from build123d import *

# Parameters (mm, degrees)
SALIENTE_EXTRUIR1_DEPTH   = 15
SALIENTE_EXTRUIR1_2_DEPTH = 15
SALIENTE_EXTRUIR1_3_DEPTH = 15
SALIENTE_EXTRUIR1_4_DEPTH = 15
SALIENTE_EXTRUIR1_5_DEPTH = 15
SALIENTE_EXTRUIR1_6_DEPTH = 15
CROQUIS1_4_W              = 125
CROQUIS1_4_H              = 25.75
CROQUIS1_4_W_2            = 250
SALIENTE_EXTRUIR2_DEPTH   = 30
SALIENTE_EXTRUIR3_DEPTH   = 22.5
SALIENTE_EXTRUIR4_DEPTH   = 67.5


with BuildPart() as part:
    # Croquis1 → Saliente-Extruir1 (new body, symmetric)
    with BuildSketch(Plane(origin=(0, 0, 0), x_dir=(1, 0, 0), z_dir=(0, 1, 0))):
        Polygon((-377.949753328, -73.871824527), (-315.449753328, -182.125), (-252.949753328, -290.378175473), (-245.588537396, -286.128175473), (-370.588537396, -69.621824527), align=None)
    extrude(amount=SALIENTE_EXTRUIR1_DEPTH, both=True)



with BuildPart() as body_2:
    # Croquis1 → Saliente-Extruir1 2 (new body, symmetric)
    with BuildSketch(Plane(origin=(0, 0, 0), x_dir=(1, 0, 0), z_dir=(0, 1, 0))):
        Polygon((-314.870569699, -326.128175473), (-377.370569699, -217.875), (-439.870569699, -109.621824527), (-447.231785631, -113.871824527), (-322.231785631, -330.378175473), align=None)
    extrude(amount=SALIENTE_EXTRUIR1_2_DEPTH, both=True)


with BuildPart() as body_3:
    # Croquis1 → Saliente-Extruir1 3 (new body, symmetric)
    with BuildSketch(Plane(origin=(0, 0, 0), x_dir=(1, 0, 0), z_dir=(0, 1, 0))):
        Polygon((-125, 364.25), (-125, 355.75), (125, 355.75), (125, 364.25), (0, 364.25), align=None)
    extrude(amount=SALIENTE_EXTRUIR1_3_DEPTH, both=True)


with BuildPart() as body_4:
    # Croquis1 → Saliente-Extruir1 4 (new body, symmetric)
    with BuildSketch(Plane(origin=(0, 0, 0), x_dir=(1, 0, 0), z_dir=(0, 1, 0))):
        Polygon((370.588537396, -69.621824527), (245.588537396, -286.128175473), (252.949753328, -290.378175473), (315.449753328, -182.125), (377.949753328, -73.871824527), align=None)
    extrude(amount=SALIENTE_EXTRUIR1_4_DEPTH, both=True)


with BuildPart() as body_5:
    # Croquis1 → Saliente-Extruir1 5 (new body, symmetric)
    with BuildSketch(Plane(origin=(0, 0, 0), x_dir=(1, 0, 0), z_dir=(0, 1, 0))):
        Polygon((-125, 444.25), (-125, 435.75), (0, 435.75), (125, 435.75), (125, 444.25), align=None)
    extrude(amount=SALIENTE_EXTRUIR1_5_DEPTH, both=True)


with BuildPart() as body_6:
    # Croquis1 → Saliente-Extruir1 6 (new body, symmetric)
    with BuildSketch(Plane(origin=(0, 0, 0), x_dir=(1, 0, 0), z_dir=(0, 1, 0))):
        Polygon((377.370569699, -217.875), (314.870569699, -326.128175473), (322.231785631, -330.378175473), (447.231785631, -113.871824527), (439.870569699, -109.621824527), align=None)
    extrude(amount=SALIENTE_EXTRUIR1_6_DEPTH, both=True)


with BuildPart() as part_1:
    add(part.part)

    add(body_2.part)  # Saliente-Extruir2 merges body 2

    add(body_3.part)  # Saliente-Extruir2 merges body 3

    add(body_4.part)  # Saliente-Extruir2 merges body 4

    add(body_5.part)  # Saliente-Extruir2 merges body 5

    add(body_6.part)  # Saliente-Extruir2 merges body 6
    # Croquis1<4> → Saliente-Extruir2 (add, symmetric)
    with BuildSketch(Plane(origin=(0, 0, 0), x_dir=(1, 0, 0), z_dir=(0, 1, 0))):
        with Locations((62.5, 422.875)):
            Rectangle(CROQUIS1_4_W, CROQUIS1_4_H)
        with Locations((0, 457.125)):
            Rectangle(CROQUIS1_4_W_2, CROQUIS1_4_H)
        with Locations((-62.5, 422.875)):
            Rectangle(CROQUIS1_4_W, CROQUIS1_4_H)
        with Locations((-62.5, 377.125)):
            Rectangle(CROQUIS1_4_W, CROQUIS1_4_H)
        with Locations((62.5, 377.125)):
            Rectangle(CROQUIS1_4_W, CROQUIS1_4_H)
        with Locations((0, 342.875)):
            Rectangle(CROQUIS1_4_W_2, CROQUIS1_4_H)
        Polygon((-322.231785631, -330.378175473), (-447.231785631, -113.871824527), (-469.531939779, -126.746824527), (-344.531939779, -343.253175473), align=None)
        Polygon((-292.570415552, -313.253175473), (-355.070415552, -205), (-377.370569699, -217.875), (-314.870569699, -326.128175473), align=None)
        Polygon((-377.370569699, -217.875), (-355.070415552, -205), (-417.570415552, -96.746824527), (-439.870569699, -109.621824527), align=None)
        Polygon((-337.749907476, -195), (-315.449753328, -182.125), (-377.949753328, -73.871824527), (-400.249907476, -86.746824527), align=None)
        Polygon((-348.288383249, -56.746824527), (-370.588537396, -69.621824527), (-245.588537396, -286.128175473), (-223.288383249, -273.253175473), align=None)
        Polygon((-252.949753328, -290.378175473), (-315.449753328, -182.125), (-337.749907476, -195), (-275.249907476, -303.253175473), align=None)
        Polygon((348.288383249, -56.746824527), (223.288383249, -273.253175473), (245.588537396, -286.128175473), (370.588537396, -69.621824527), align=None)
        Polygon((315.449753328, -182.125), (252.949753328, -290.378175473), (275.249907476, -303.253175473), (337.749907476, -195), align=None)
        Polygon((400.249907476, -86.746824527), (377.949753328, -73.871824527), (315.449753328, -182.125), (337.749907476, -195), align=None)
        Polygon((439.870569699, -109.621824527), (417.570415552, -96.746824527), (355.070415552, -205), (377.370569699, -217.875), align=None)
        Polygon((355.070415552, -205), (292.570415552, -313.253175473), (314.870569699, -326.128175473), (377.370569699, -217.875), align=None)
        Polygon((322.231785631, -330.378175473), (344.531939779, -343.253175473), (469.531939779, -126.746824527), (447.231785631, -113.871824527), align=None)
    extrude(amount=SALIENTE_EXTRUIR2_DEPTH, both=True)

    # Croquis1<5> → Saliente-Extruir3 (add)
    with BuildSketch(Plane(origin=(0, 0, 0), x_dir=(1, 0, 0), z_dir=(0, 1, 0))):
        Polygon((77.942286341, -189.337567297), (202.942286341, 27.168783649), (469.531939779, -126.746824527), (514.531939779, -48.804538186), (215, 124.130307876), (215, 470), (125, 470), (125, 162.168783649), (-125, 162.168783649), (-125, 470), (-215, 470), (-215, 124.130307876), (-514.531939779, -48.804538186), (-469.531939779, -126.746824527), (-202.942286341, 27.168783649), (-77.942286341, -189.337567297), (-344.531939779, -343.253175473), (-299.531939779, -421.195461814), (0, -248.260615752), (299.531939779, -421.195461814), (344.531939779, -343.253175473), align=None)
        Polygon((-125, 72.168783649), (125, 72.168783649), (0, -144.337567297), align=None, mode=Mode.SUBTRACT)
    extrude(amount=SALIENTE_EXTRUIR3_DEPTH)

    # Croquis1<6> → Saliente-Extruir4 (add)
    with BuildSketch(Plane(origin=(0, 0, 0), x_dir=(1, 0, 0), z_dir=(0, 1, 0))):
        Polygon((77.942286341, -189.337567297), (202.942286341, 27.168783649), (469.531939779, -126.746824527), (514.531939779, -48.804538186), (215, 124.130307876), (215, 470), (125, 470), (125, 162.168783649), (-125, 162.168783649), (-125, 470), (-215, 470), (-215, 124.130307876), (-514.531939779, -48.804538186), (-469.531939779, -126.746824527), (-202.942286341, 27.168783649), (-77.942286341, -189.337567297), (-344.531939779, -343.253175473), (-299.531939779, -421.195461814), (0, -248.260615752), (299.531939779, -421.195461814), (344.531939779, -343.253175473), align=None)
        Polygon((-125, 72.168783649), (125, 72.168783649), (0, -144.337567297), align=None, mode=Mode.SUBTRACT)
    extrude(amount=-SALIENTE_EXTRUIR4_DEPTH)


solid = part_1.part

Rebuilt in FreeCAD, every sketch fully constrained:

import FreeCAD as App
import Part
import Sketcher
from FreeCAD import Vector
Q = App.Units.Quantity

doc = App.newDocument("Part")
body = doc.addObject("PartDesign::Body", "Body")

sketch1 = doc.addObject("Sketcher::SketchObject", "Sketch")
body.addObject(sketch1)
sketch1.AttachmentSupport = (doc.XZ_Plane, [""])
sketch1.MapMode = "FlatFace"
sketch1.addGeometry([
    Part.LineSegment(Vector(-378, 74, 0), Vector(-253, 290, 0)),
    Part.LineSegment(Vector(-253, 290, 0), Vector(-246, 286, 0)),
    Part.LineSegment(Vector(-246, 286, 0), Vector(-371, 70, 0)),
    Part.LineSegment(Vector(-371, 70, 0), Vector(-378, 74, 0)),
], False)
sketch1.addConstraint([
    Sketcher.Constraint("Coincident", 0, 2, 1, 1),
    Sketcher.Constraint("Coincident", 1, 2, 2, 1),
    Sketcher.Constraint("Coincident", 2, 2, 3, 1),
    Sketcher.Constraint("Coincident", 3, 2, 0, 1),
    Sketcher.Constraint("Perpendicular", 0, 1),
    Sketcher.Constraint("Perpendicular", 1, 2),
    Sketcher.Constraint("Perpendicular", 2, 3),
    Sketcher.Constraint("Angle", 0, Q("60 deg")),
    Sketcher.Constraint("Distance", 0, Q("250 mm")),
    Sketcher.Constraint("Distance", 1, Q("8.5 mm")),
    Sketcher.Constraint("DistanceX", 0, 2, -1, 1, Q("252.949753 mm")),
    Sketcher.Constraint("DistanceY", -1, 1, 0, 2, Q("290.378175 mm")),
])
pad1 = doc.addObject("PartDesign::Pad", "Pad")
body.addObject(pad1)
pad1.Profile = sketch1
pad1.Length = 30
pad1.Midplane = True
body2 = doc.addObject("PartDesign::Body", "Body001")

sketch2 = doc.addObject("Sketcher::SketchObject", "Sketch001")
body2.addObject(sketch2)
sketch2.AttachmentSupport = (doc.getObject("XZ_Plane001"), [""])
sketch2.MapMode = "FlatFace"
sketch2.addGeometry([
    Part.LineSegment(Vector(-315, 326, 0), Vector(-440, 110, 0)),
    Part.LineSegment(Vector(-440, 110, 0), Vector(-447, 114, 0)),
    Part.LineSegment(Vector(-447, 114, 0), Vector(-322, 330, 0)),
    Part.LineSegment(Vector(-322, 330, 0), Vector(-315, 326, 0)),
], False)
sketch2.addConstraint([
    Sketcher.Constraint("Coincident", 0, 2, 1, 1),
    Sketcher.Constraint("Coincident", 1, 2, 2, 1),
    Sketcher.Constraint("Coincident", 2, 2, 3, 1),
    Sketcher.Constraint("Coincident", 3, 2, 0, 1),
    Sketcher.Constraint("Perpendicular", 0, 1),
    Sketcher.Constraint("Perpendicular", 1, 2),
    Sketcher.Constraint("Perpendicular", 2, 3),
    Sketcher.Constraint("Angle", 0, Q("-120 deg")),
    Sketcher.Constraint("Distance", 0, Q("250 mm")),
    Sketcher.Constraint("Distance", 1, Q("8.5 mm")),
    Sketcher.Constraint("DistanceX", 0, 2, -1, 1, Q("439.87057 mm")),
    Sketcher.Constraint("DistanceY", -1, 1, 0, 2, Q("109.621825 mm")),
])
pad2 = doc.addObject("PartDesign::Pad", "Pad001")
body2.addObject(pad2)
pad2.Profile = sketch2
pad2.Length = 30
pad2.Midplane = True
body3 = doc.addObject("PartDesign::Body", "Body002")

sketch3 = doc.addObject("Sketcher::SketchObject", "Sketch002")
body3.addObject(sketch3)
sketch3.AttachmentSupport = (doc.getObject("XZ_Plane002"), [""])
sketch3.MapMode = "FlatFace"
sketch3.addGeometry([
    Part.LineSegment(Vector(-125, -364, 0), Vector(-125, -356, 0)),
    Part.LineSegment(Vector(-125, -356, 0), Vector(125, -356, 0)),
    Part.LineSegment(Vector(125, -356, 0), Vector(125, -364, 0)),
    Part.LineSegment(Vector(125, -364, 0), Vector(-125, -364, 0)),
], False)
sketch3.addConstraint([
    Sketcher.Constraint("Coincident", 0, 2, 1, 1),
    Sketcher.Constraint("Coincident", 1, 2, 2, 1),
    Sketcher.Constraint("Coincident", 2, 2, 3, 1),
    Sketcher.Constraint("Coincident", 3, 2, 0, 1),
    Sketcher.Constraint("Vertical", 0),
    Sketcher.Constraint("Horizontal", 1),
    Sketcher.Constraint("Vertical", 2),
    Sketcher.Constraint("Horizontal", 3),
    Sketcher.Constraint("DistanceX", 1, 1, 1, 2, Q("250 mm")),
    Sketcher.Constraint("DistanceY", 0, 1, 0, 2, Q("8.5 mm")),
    Sketcher.Constraint("DistanceX", 0, 2, -1, 1, Q("125 mm")),
    Sketcher.Constraint("DistanceY", 0, 2, -1, 1, Q("355.75 mm")),
])
pad3 = doc.addObject("PartDesign::Pad", "Pad002")
body3.addObject(pad3)
pad3.Profile = sketch3
pad3.Length = 30
pad3.Midplane = True
body4 = doc.addObject("PartDesign::Body", "Body003")

sketch4 = doc.addObject("Sketcher::SketchObject", "Sketch003")
body4.addObject(sketch4)
sketch4.AttachmentSupport = (doc.getObject("XZ_Plane003"), [""])
sketch4.MapMode = "FlatFace"
sketch4.addGeometry([
    Part.LineSegment(Vector(371, 70, 0), Vector(246, 286, 0)),
    Part.LineSegment(Vector(246, 286, 0), Vector(253, 290, 0)),
    Part.LineSegment(Vector(253, 290, 0), Vector(378, 74, 0)),
    Part.LineSegment(Vector(378, 74, 0), Vector(371, 70, 0)),
], False)
sketch4.addConstraint([
    Sketcher.Constraint("Coincident", 0, 2, 1, 1),
    Sketcher.Constraint("Coincident", 1, 2, 2, 1),
    Sketcher.Constraint("Coincident", 2, 2, 3, 1),
    Sketcher.Constraint("Coincident", 3, 2, 0, 1),
    Sketcher.Constraint("Perpendicular", 0, 1),
    Sketcher.Constraint("Perpendicular", 1, 2),
    Sketcher.Constraint("Perpendicular", 2, 3),
    Sketcher.Constraint("Angle", 0, Q("120 deg")),
    Sketcher.Constraint("Distance", 0, Q("250 mm")),
    Sketcher.Constraint("Distance", 1, Q("8.5 mm")),
    Sketcher.Constraint("DistanceX", -1, 1, 0, 2, Q("245.588537 mm")),
    Sketcher.Constraint("DistanceY", -1, 1, 0, 2, Q("286.128175 mm")),
])
pad4 = doc.addObject("PartDesign::Pad", "Pad003")
body4.addObject(pad4)
pad4.Profile = sketch4
pad4.Length = 30
pad4.Midplane = True
body5 = doc.addObject("PartDesign::Body", "Body004")

sketch5 = doc.addObject("Sketcher::SketchObject", "Sketch004")
body5.addObject(sketch5)
sketch5.AttachmentSupport = (doc.getObject("XZ_Plane004"), [""])
sketch5.MapMode = "FlatFace"
sketch5.addGeometry([
    Part.LineSegment(Vector(-125, -444, 0), Vector(-125, -436, 0)),
    Part.LineSegment(Vector(-125, -436, 0), Vector(125, -436, 0)),
    Part.LineSegment(Vector(125, -436, 0), Vector(125, -444, 0)),
    Part.LineSegment(Vector(125, -444, 0), Vector(-125, -444, 0)),
], False)
sketch5.addConstraint([
    Sketcher.Constraint("Coincident", 0, 2, 1, 1),
    Sketcher.Constraint("Coincident", 1, 2, 2, 1),
    Sketcher.Constraint("Coincident", 2, 2, 3, 1),
    Sketcher.Constraint("Coincident", 3, 2, 0, 1),
    Sketcher.Constraint("Vertical", 0),
    Sketcher.Constraint("Horizontal", 1),
    Sketcher.Constraint("Vertical", 2),
    Sketcher.Constraint("Horizontal", 3),
    Sketcher.Constraint("DistanceX", 1, 1, 1, 2, Q("250 mm")),
    Sketcher.Constraint("DistanceY", 0, 1, 0, 2, Q("8.5 mm")),
    Sketcher.Constraint("DistanceX", 0, 2, -1, 1, Q("125 mm")),
    Sketcher.Constraint("DistanceY", 0, 2, -1, 1, Q("435.75 mm")),
])
pad5 = doc.addObject("PartDesign::Pad", "Pad004")
body5.addObject(pad5)
pad5.Profile = sketch5
pad5.Length = 30
pad5.Midplane = True
body6 = doc.addObject("PartDesign::Body", "Body005")

sketch6 = doc.addObject("Sketcher::SketchObject", "Sketch005")
body6.addObject(sketch6)
sketch6.AttachmentSupport = (doc.getObject("XZ_Plane005"), [""])
sketch6.MapMode = "FlatFace"
sketch6.addGeometry([
    Part.LineSegment(Vector(315, 326, 0), Vector(322, 330, 0)),
    Part.LineSegment(Vector(322, 330, 0), Vector(447, 114, 0)),
    Part.LineSegment(Vector(447, 114, 0), Vector(440, 110, 0)),
    Part.LineSegment(Vector(440, 110, 0), Vector(315, 326, 0)),
], False)
sketch6.addConstraint([
    Sketcher.Constraint("Coincident", 0, 2, 1, 1),
    Sketcher.Constraint("Coincident", 1, 2, 2, 1),
    Sketcher.Constraint("Coincident", 2, 2, 3, 1),
    Sketcher.Constraint("Coincident", 3, 2, 0, 1),
    Sketcher.Constraint("Perpendicular", 0, 1),
    Sketcher.Constraint("Perpendicular", 1, 2),
    Sketcher.Constraint("Perpendicular", 2, 3),
    Sketcher.Constraint("Angle", 0, Q("30 deg")),
    Sketcher.Constraint("Distance", 1, Q("250 mm")),
    Sketcher.Constraint("Distance", 0, Q("8.5 mm")),
    Sketcher.Constraint("DistanceX", -1, 1, 2, 2, Q("439.87057 mm")),
    Sketcher.Constraint("DistanceY", -1, 1, 0, 2, Q("330.378175 mm")),
])
pad6 = doc.addObject("PartDesign::Pad", "Pad005")
body6.addObject(pad6)
pad6.Profile = sketch6
pad6.Length = 30
pad6.Midplane = True
body.AllowCompound = True
doc.recompute()

boolean = doc.addObject("PartDesign::Boolean", "Boolean")
body.addObject(boolean)
boolean.Type = "Fuse"
boolean.addObjects([body2])
doc.recompute()

boolean2 = doc.addObject("PartDesign::Boolean", "Boolean001")
body.addObject(boolean2)
boolean2.Type = "Fuse"
boolean2.addObjects([body3])
doc.recompute()

boolean3 = doc.addObject("PartDesign::Boolean", "Boolean002")
body.addObject(boolean3)
boolean3.Type = "Fuse"
boolean3.addObjects([body4])
doc.recompute()

boolean4 = doc.addObject("PartDesign::Boolean", "Boolean003")
body.addObject(boolean4)
boolean4.Type = "Fuse"
boolean4.addObjects([body5])
doc.recompute()

boolean5 = doc.addObject("PartDesign::Boolean", "Boolean004")
body.addObject(boolean5)
boolean5.Type = "Fuse"
boolean5.addObjects([body6])

sketch7 = doc.addObject("Sketcher::SketchObject", "Sketch006")
body.addObject(sketch7)
sketch7.AttachmentSupport = (doc.XZ_Plane, [""])
sketch7.MapMode = "FlatFace"
sketch7.addGeometry([
    Part.LineSegment(Vector(125, -410, 0), Vector(125, -436, 0)),
    Part.LineSegment(Vector(125, -436, 0), Vector(-125, -436, 0)),
    Part.LineSegment(Vector(-125, -436, 0), Vector(-125, -410, 0)),
    Part.LineSegment(Vector(-125, -410, 0), Vector(125, -410, 0)),
    Part.LineSegment(Vector(-125, -470, 0), Vector(-125, -444, 0)),
    Part.LineSegment(Vector(-125, -444, 0), Vector(125, -444, 0)),
    Part.LineSegment(Vector(125, -444, 0), Vector(125, -470, 0)),
    Part.LineSegment(Vector(125, -470, 0), Vector(-125, -470, 0)),
    Part.LineSegment(Vector(-125, -390, 0), Vector(-125, -364, 0)),
    Part.LineSegment(Vector(-125, -364, 0), Vector(125, -364, 0)),
    Part.LineSegment(Vector(125, -364, 0), Vector(125, -390, 0)),
    Part.LineSegment(Vector(125, -390, 0), Vector(-125, -390, 0)),
    Part.LineSegment(Vector(-125, -356, 0), Vector(-125, -330, 0)),
    Part.LineSegment(Vector(-125, -330, 0), Vector(125, -330, 0)),
    Part.LineSegment(Vector(125, -330, 0), Vector(125, -356, 0)),
    Part.LineSegment(Vector(125, -356, 0), Vector(-125, -356, 0)),
    Part.LineSegment(Vector(-322, 330, 0), Vector(-447, 114, 0)),
    Part.LineSegment(Vector(-447, 114, 0), Vector(-470, 127, 0)),
    Part.LineSegment(Vector(-470, 127, 0), Vector(-345, 343, 0)),
    Part.LineSegment(Vector(-345, 343, 0), Vector(-322, 330, 0)),
    Part.LineSegment(Vector(-293, 313, 0), Vector(-418, 97, 0)),
    Part.LineSegment(Vector(-418, 97, 0), Vector(-440, 110, 0)),
    Part.LineSegment(Vector(-440, 110, 0), Vector(-315, 326, 0)),
    Part.LineSegment(Vector(-315, 326, 0), Vector(-293, 313, 0)),
    Part.LineSegment(Vector(-378, 74, 0), Vector(-400, 87, 0)),
    Part.LineSegment(Vector(-400, 87, 0), Vector(-275, 303, 0)),
    Part.LineSegment(Vector(-275, 303, 0), Vector(-253, 290, 0)),
    Part.LineSegment(Vector(-253, 290, 0), Vector(-378, 74, 0)),
    Part.LineSegment(Vector(-348, 57, 0), Vector(-371, 70, 0)),
    Part.LineSegment(Vector(-371, 70, 0), Vector(-246, 286, 0)),
    Part.LineSegment(Vector(-246, 286, 0), Vector(-223, 273, 0)),
    Part.LineSegment(Vector(-223, 273, 0), Vector(-348, 57, 0)),
    Part.LineSegment(Vector(348, 57, 0), Vector(223, 273, 0)),
    Part.LineSegment(Vector(223, 273, 0), Vector(246, 286, 0)),
    Part.LineSegment(Vector(246, 286, 0), Vector(371, 70, 0)),
    Part.LineSegment(Vector(371, 70, 0), Vector(348, 57, 0)),
    Part.LineSegment(Vector(253, 290, 0), Vector(275, 303, 0)),
    Part.LineSegment(Vector(275, 303, 0), Vector(400, 87, 0)),
    Part.LineSegment(Vector(400, 87, 0), Vector(378, 74, 0)),
    Part.LineSegment(Vector(378, 74, 0), Vector(253, 290, 0)),
    Part.LineSegment(Vector(440, 110, 0), Vector(418, 97, 0)),
    Part.LineSegment(Vector(418, 97, 0), Vector(293, 313, 0)),
    Part.LineSegment(Vector(293, 313, 0), Vector(315, 326, 0)),
    Part.LineSegment(Vector(315, 326, 0), Vector(440, 110, 0)),
    Part.LineSegment(Vector(322, 330, 0), Vector(345, 343, 0)),
    Part.LineSegment(Vector(345, 343, 0), Vector(470, 127, 0)),
    Part.LineSegment(Vector(470, 127, 0), Vector(447, 114, 0)),
    Part.LineSegment(Vector(447, 114, 0), Vector(322, 330, 0)),
], False)
sketch7.addConstraint([
    Sketcher.Constraint("Coincident", 0, 2, 1, 1),
    Sketcher.Constraint("Coincident", 1, 2, 2, 1),
    Sketcher.Constraint("Coincident", 2, 2, 3, 1),
    Sketcher.Constraint("Coincident", 3, 2, 0, 1),
    Sketcher.Constraint("Coincident", 4, 2, 5, 1),
    Sketcher.Constraint("Coincident", 5, 2, 6, 1),
    Sketcher.Constraint("Coincident", 6, 2, 7, 1),
    Sketcher.Constraint("Coincident", 7, 2, 4, 1),
    Sketcher.Constraint("Coincident", 8, 2, 9, 1),
    Sketcher.Constraint("Coincident", 9, 2, 10, 1),
    Sketcher.Constraint("Coincident", 10, 2, 11, 1),
    Sketcher.Constraint("Coincident", 11, 2, 8, 1),
    Sketcher.Constraint("Coincident", 12, 2, 13, 1),
    Sketcher.Constraint("Coincident", 13, 2, 14, 1),
    Sketcher.Constraint("Coincident", 14, 2, 15, 1),
    Sketcher.Constraint("Coincident", 15, 2, 12, 1),
    Sketcher.Constraint("Coincident", 16, 2, 17, 1),
    Sketcher.Constraint("Coincident", 17, 2, 18, 1),
    Sketcher.Constraint("Coincident", 18, 2, 19, 1),
    Sketcher.Constraint("Coincident", 19, 2, 16, 1),
    Sketcher.Constraint("Coincident", 20, 2, 21, 1),
    Sketcher.Constraint("Coincident", 21, 2, 22, 1),
    Sketcher.Constraint("Coincident", 22, 2, 23, 1),
    Sketcher.Constraint("Coincident", 23, 2, 20, 1),
    Sketcher.Constraint("Coincident", 24, 2, 25, 1),
    Sketcher.Constraint("Coincident", 25, 2, 26, 1),
    Sketcher.Constraint("Coincident", 26, 2, 27, 1),
    Sketcher.Constraint("Coincident", 27, 2, 24, 1),
    Sketcher.Constraint("Coincident", 28, 2, 29, 1),
    Sketcher.Constraint("Coincident", 29, 2, 30, 1),
    Sketcher.Constraint("Coincident", 30, 2, 31, 1),
    Sketcher.Constraint("Coincident", 31, 2, 28, 1),
    Sketcher.Constraint("Coincident", 32, 2, 33, 1),
    Sketcher.Constraint("Coincident", 33, 2, 34, 1),
    Sketcher.Constraint("Coincident", 34, 2, 35, 1),
    Sketcher.Constraint("Coincident", 35, 2, 32, 1),
    Sketcher.Constraint("Coincident", 36, 2, 37, 1),
    Sketcher.Constraint("Coincident", 37, 2, 38, 1),
    Sketcher.Constraint("Coincident", 38, 2, 39, 1),
    Sketcher.Constraint("Coincident", 39, 2, 36, 1),
    Sketcher.Constraint("Coincident", 40, 2, 41, 1),
    Sketcher.Constraint("Coincident", 41, 2, 42, 1),
    Sketcher.Constraint("Coincident", 42, 2, 43, 1),
    Sketcher.Constraint("Coincident", 43, 2, 40, 1),
    Sketcher.Constraint("Coincident", 44, 2, 45, 1),
    Sketcher.Constraint("Coincident", 45, 2, 46, 1),
    Sketcher.Constraint("Coincident", 46, 2, 47, 1),
    Sketcher.Constraint("Coincident", 47, 2, 44, 1),
    Sketcher.Constraint("Vertical", 0),
    Sketcher.Constraint("Horizontal", 1),
    Sketcher.Constraint("Vertical", 2),
    Sketcher.Constraint("Horizontal", 3),
    Sketcher.Constraint("Vertical", 4),
    Sketcher.Constraint("Horizontal", 5),
    Sketcher.Constraint("Vertical", 6),
    Sketcher.Constraint("Horizontal", 7),
    Sketcher.Constraint("Vertical", 8),
    Sketcher.Constraint("Horizontal", 9),
    Sketcher.Constraint("Vertical", 10),
    Sketcher.Constraint("Horizontal", 11),
    Sketcher.Constraint("Vertical", 12),
    Sketcher.Constraint("Horizontal", 13),
    Sketcher.Constraint("Vertical", 14),
    Sketcher.Constraint("Horizontal", 15),
    Sketcher.Constraint("Symmetric", 30, 2, 32, 2, -2),
    Sketcher.Constraint("Symmetric", 29, 2, 33, 2, -2),
    Sketcher.Constraint("Symmetric", 28, 2, 34, 2, -2),
    Sketcher.Constraint("Symmetric", 31, 2, 35, 2, -2),
    Sketcher.Constraint("Symmetric", 25, 2, 36, 2, -2),
    Sketcher.Constraint("Symmetric", 24, 2, 37, 2, -2),
    Sketcher.Constraint("Symmetric", 27, 2, 38, 2, -2),
    Sketcher.Constraint("Symmetric", 26, 2, 39, 2, -2),
    Sketcher.Constraint("Symmetric", 20, 2, 40, 2, -2),
    Sketcher.Constraint("Symmetric", 23, 2, 41, 2, -2),
    Sketcher.Constraint("Symmetric", 22, 2, 42, 2, -2),
    Sketcher.Constraint("Symmetric", 21, 2, 43, 2, -2),
    Sketcher.Constraint("Symmetric", 18, 2, 44, 2, -2),
    Sketcher.Constraint("Symmetric", 17, 2, 45, 2, -2),
    Sketcher.Constraint("Symmetric", 16, 2, 46, 2, -2),
    Sketcher.Constraint("Symmetric", 19, 2, 47, 2, -2),
    Sketcher.Constraint("Perpendicular", 16, 17),
    Sketcher.Constraint("Perpendicular", 17, 18),
    Sketcher.Constraint("Perpendicular", 18, 19),
    Sketcher.Constraint("Perpendicular", 19, 20),
    Sketcher.Constraint("Perpendicular", 20, 21),
    Sketcher.Constraint("Perpendicular", 21, 22),
    Sketcher.Constraint("Perpendicular", 22, 23),
    Sketcher.Constraint("Parallel", 23, 24),
    Sketcher.Constraint("Perpendicular", 24, 25),
    Sketcher.Constraint("Perpendicular", 25, 26),
    Sketcher.Constraint("Perpendicular", 26, 27),
    Sketcher.Constraint("Perpendicular", 27, 28),
    Sketcher.Constraint("Perpendicular", 28, 29),
    Sketcher.Constraint("Perpendicular", 29, 30),
    Sketcher.Constraint("Perpendicular", 30, 31),
    Sketcher.Constraint("Vertical", 2, 2, 4, 2),
    Sketcher.Constraint("Vertical", 3, 2, 5, 2),
    Sketcher.Constraint("Vertical", 7, 2, 8, 2),
    Sketcher.Constraint("Vertical", 6, 2, 9, 2),
    Sketcher.Constraint("Vertical", 11, 2, 12, 2),
    Sketcher.Constraint("Vertical", 10, 2, 13, 2),
    Sketcher.Constraint("Equal", 2, 4),
    Sketcher.Constraint("Equal", 6, 8),
    Sketcher.Constraint("Equal", 10, 12),
    Sketcher.Constraint("Equal", 18, 20),
    Sketcher.Constraint("Equal", 19, 21),
    Sketcher.Constraint("Equal", 23, 24),
    Sketcher.Constraint("Equal", 22, 25),
    Sketcher.Constraint("Equal", 26, 28),
    Sketcher.Constraint("Equal", 27, 29),
    Sketcher.Constraint("DistanceX", 1, 2, 1, 1, Q("250 mm")),
    Sketcher.Constraint("Angle", 16, Q("-120 deg")),
    Sketcher.Constraint("Distance", 16, Q("250 mm")),
    Sketcher.Constraint("DistanceX", -1, 1, 0, 2, Q("125 mm")),
    Sketcher.Constraint("DistanceY", 2, 2, -1, 1, Q("410 mm")),
    Sketcher.Constraint("DistanceY", 6, 2, -1, 1, Q("470 mm")),
    Sketcher.Constraint("DistanceY", 10, 2, -1, 1, Q("390 mm")),
    Sketcher.Constraint("DistanceY", 12, 2, -1, 1, Q("330 mm")),
    Sketcher.Constraint("DistanceY", 20, 2, 17, 2, Q("30 mm")),
    Sketcher.Constraint("DistanceY", 24, 2, 20, 2, Q("10 mm")),
    Sketcher.Constraint("DistanceY", 28, 2, 21, 2, Q("40 mm")),
    Sketcher.Constraint("DistanceY", 0, 2, 0, 1, Q("25.75 mm")),
    Sketcher.Constraint("Distance", 17, Q("25.75 mm")),
    Sketcher.Constraint("DistanceX", 23, 2, 32, 2, Q("515.858799 mm")),
    Sketcher.Constraint("DistanceX", 17, 2, -1, 1, Q("469.53194 mm")),
    Sketcher.Constraint("DistanceX", 21, 2, -1, 1, Q("439.87057 mm")),
    Sketcher.Constraint("DistanceX", 20, 2, 24, 2, Q("17.320508 mm")),
    Sketcher.Constraint("DistanceY", -1, 1, 16, 2, Q("113.871825 mm")),
])
pad7 = doc.addObject("PartDesign::Pad", "Pad006")
body.addObject(pad7)
pad7.Profile = sketch7
pad7.Length = 60
pad7.Midplane = True

sketch8 = doc.addObject("Sketcher::SketchObject", "Sketch007")
body.addObject(sketch8)
sketch8.AttachmentSupport = (doc.XZ_Plane, [""])
sketch8.MapMode = "FlatFace"
sketch8.addGeometry([
    Part.LineSegment(Vector(78, 189, 0), Vector(203, -27, 0)),
    Part.LineSegment(Vector(203, -27, 0), Vector(470, 127, 0)),
    Part.LineSegment(Vector(470, 127, 0), Vector(515, 49, 0)),
    Part.LineSegment(Vector(515, 49, 0), Vector(215, -124, 0)),
    Part.LineSegment(Vector(215, -124, 0), Vector(215, -470, 0)),
    Part.LineSegment(Vector(215, -470, 0), Vector(125, -470, 0)),
    Part.LineSegment(Vector(125, -470, 0), Vector(125, -162, 0)),
    Part.LineSegment(Vector(125, -162, 0), Vector(-125, -162, 0)),
    Part.LineSegment(Vector(-125, -162, 0), Vector(-125, -470, 0)),
    Part.LineSegment(Vector(-125, -470, 0), Vector(-215, -470, 0)),
    Part.LineSegment(Vector(-215, -470, 0), Vector(-215, -124, 0)),
    Part.LineSegment(Vector(-215, -124, 0), Vector(-515, 49, 0)),
    Part.LineSegment(Vector(-515, 49, 0), Vector(-470, 127, 0)),
    Part.LineSegment(Vector(-470, 127, 0), Vector(-203, -27, 0)),
    Part.LineSegment(Vector(-203, -27, 0), Vector(-78, 189, 0)),
    Part.LineSegment(Vector(-78, 189, 0), Vector(-345, 343, 0)),
    Part.LineSegment(Vector(-345, 343, 0), Vector(-300, 421, 0)),
    Part.LineSegment(Vector(-300, 421, 0), Vector(0, 248, 0)),
    Part.LineSegment(Vector(0, 248, 0), Vector(300, 421, 0)),
    Part.LineSegment(Vector(300, 421, 0), Vector(345, 343, 0)),
    Part.LineSegment(Vector(345, 343, 0), Vector(78, 189, 0)),
    Part.LineSegment(Vector(0, 144, 0), Vector(-125, -72, 0)),
    Part.LineSegment(Vector(-125, -72, 0), Vector(125, -72, 0)),
    Part.LineSegment(Vector(125, -72, 0), Vector(0, 144, 0)),
], False)
sketch8.addConstraint([
    Sketcher.Constraint("Coincident", 0, 2, 1, 1),
    Sketcher.Constraint("Coincident", 1, 2, 2, 1),
    Sketcher.Constraint("Coincident", 2, 2, 3, 1),
    Sketcher.Constraint("Coincident", 3, 2, 4, 1),
    Sketcher.Constraint("Coincident", 4, 2, 5, 1),
    Sketcher.Constraint("Coincident", 5, 2, 6, 1),
    Sketcher.Constraint("Coincident", 6, 2, 7, 1),
    Sketcher.Constraint("Coincident", 7, 2, 8, 1),
    Sketcher.Constraint("Coincident", 8, 2, 9, 1),
    Sketcher.Constraint("Coincident", 9, 2, 10, 1),
    Sketcher.Constraint("Coincident", 10, 2, 11, 1),
    Sketcher.Constraint("Coincident", 11, 2, 12, 1),
    Sketcher.Constraint("Coincident", 12, 2, 13, 1),
    Sketcher.Constraint("Coincident", 13, 2, 14, 1),
    Sketcher.Constraint("Coincident", 14, 2, 15, 1),
    Sketcher.Constraint("Coincident", 15, 2, 16, 1),
    Sketcher.Constraint("Coincident", 16, 2, 17, 1),
    Sketcher.Constraint("Coincident", 17, 2, 18, 1),
    Sketcher.Constraint("Coincident", 18, 2, 19, 1),
    Sketcher.Constraint("Coincident", 19, 2, 20, 1),
    Sketcher.Constraint("Coincident", 20, 2, 0, 1),
    Sketcher.Constraint("Coincident", 21, 2, 22, 1),
    Sketcher.Constraint("Coincident", 22, 2, 23, 1),
    Sketcher.Constraint("Coincident", 23, 2, 21, 1),
    Sketcher.Constraint("Vertical", 4),
    Sketcher.Constraint("Horizontal", 5),
    Sketcher.Constraint("Vertical", 6),
    Sketcher.Constraint("Horizontal", 7),
    Sketcher.Constraint("Vertical", 8),
    Sketcher.Constraint("Horizontal", 9),
    Sketcher.Constraint("Vertical", 10),
    Sketcher.Constraint("Horizontal", 22),
    Sketcher.Constraint("Symmetric", 5, 2, 8, 2, -2),
    Sketcher.Constraint("Symmetric", 3, 2, 10, 2, -2),
    Sketcher.Constraint("Symmetric", 2, 2, 11, 2, -2),
    Sketcher.Constraint("Symmetric", 1, 2, 12, 2, -2),
    Sketcher.Constraint("Symmetric", 0, 2, 13, 2, -2),
    Sketcher.Constraint("Symmetric", 16, 2, 18, 2, -2),
    Sketcher.Constraint("Symmetric", 15, 2, 19, 2, -2),
    Sketcher.Constraint("Symmetric", 14, 2, 20, 2, -2),
    Sketcher.Constraint("PointOnObject", 17, 2, -2),
    Sketcher.Constraint("PointOnObject", 23, 2, -2),
    Sketcher.Constraint("Perpendicular", 0, 1),
    Sketcher.Constraint("Perpendicular", 1, 2),
    Sketcher.Constraint("Perpendicular", 2, 3),
    Sketcher.Constraint("Perpendicular", 14, 15),
    Sketcher.Constraint("Perpendicular", 15, 16),
    Sketcher.Constraint("Perpendicular", 16, 17),
    Sketcher.Constraint("Perpendicular", 17, 21),
    Sketcher.Constraint("Perpendicular", 20, 23),
    Sketcher.Constraint("Vertical", 8, 2, 21, 2),
    Sketcher.Constraint("Equal", 13, 15),
    Sketcher.Constraint("Equal", 12, 16),
    Sketcher.Constraint("Equal", 11, 17),
    Sketcher.Constraint("Equal", 14, 21),
    Sketcher.Constraint("DistanceX", 5, 2, 5, 1, Q("90 mm")),
    Sketcher.Constraint("DistanceX", 7, 2, 7, 1, Q("250 mm")),
    Sketcher.Constraint("Angle", 0, Q("-60 deg")),
    Sketcher.Constraint("DistanceY", 4, 2, -1, 1, Q("470 mm")),
    Sketcher.Constraint("DistanceY", 6, 2, 0, 2, Q("135 mm")),
    Sketcher.Constraint("DistanceY", 7, 2, 21, 2, Q("90 mm")),
    Sketcher.Constraint("DistanceY", 0, 2, 17, 2, Q("275.429399 mm")),
    Sketcher.Constraint("DistanceY", 4, 2, 4, 1, Q("345.869692 mm")),
    Sketcher.Constraint("DistanceX", -1, 1, 1, 2, Q("469.53194 mm")),
])
pad8 = doc.addObject("PartDesign::Pad", "Pad007")
body.addObject(pad8)
pad8.Profile = sketch8
pad8.Length = 22.5
pad8.Reversed = True

sketch9 = doc.addObject("Sketcher::SketchObject", "Sketch008")
body.addObject(sketch9)
sketch9.AttachmentSupport = (doc.XZ_Plane, [""])
sketch9.MapMode = "FlatFace"
sketch9.addGeometry([
    Part.LineSegment(Vector(78, 189, 0), Vector(203, -27, 0)),
    Part.LineSegment(Vector(203, -27, 0), Vector(470, 127, 0)),
    Part.LineSegment(Vector(470, 127, 0), Vector(515, 49, 0)),
    Part.LineSegment(Vector(515, 49, 0), Vector(215, -124, 0)),
    Part.LineSegment(Vector(215, -124, 0), Vector(215, -470, 0)),
    Part.LineSegment(Vector(215, -470, 0), Vector(125, -470, 0)),
    Part.LineSegment(Vector(125, -470, 0), Vector(125, -162, 0)),
    Part.LineSegment(Vector(125, -162, 0), Vector(-125, -162, 0)),
    Part.LineSegment(Vector(-125, -162, 0), Vector(-125, -470, 0)),
    Part.LineSegment(Vector(-125, -470, 0), Vector(-215, -470, 0)),
    Part.LineSegment(Vector(-215, -470, 0), Vector(-215, -124, 0)),
    Part.LineSegment(Vector(-215, -124, 0), Vector(-515, 49, 0)),
    Part.LineSegment(Vector(-515, 49, 0), Vector(-470, 127, 0)),
    Part.LineSegment(Vector(-470, 127, 0), Vector(-203, -27, 0)),
    Part.LineSegment(Vector(-203, -27, 0), Vector(-78, 189, 0)),
    Part.LineSegment(Vector(-78, 189, 0), Vector(-345, 343, 0)),
    Part.LineSegment(Vector(-345, 343, 0), Vector(-300, 421, 0)),
    Part.LineSegment(Vector(-300, 421, 0), Vector(0, 248, 0)),
    Part.LineSegment(Vector(0, 248, 0), Vector(300, 421, 0)),
    Part.LineSegment(Vector(300, 421, 0), Vector(345, 343, 0)),
    Part.LineSegment(Vector(345, 343, 0), Vector(78, 189, 0)),
    Part.LineSegment(Vector(0, 144, 0), Vector(-125, -72, 0)),
    Part.LineSegment(Vector(-125, -72, 0), Vector(125, -72, 0)),
    Part.LineSegment(Vector(125, -72, 0), Vector(0, 144, 0)),
], False)
sketch9.addConstraint([
    Sketcher.Constraint("Coincident", 0, 2, 1, 1),
    Sketcher.Constraint("Coincident", 1, 2, 2, 1),
    Sketcher.Constraint("Coincident", 2, 2, 3, 1),
    Sketcher.Constraint("Coincident", 3, 2, 4, 1),
    Sketcher.Constraint("Coincident", 4, 2, 5, 1),
    Sketcher.Constraint("Coincident", 5, 2, 6, 1),
    Sketcher.Constraint("Coincident", 6, 2, 7, 1),
    Sketcher.Constraint("Coincident", 7, 2, 8, 1),
    Sketcher.Constraint("Coincident", 8, 2, 9, 1),
    Sketcher.Constraint("Coincident", 9, 2, 10, 1),
    Sketcher.Constraint("Coincident", 10, 2, 11, 1),
    Sketcher.Constraint("Coincident", 11, 2, 12, 1),
    Sketcher.Constraint("Coincident", 12, 2, 13, 1),
    Sketcher.Constraint("Coincident", 13, 2, 14, 1),
    Sketcher.Constraint("Coincident", 14, 2, 15, 1),
    Sketcher.Constraint("Coincident", 15, 2, 16, 1),
    Sketcher.Constraint("Coincident", 16, 2, 17, 1),
    Sketcher.Constraint("Coincident", 17, 2, 18, 1),
    Sketcher.Constraint("Coincident", 18, 2, 19, 1),
    Sketcher.Constraint("Coincident", 19, 2, 20, 1),
    Sketcher.Constraint("Coincident", 20, 2, 0, 1),
    Sketcher.Constraint("Coincident", 21, 2, 22, 1),
    Sketcher.Constraint("Coincident", 22, 2, 23, 1),
    Sketcher.Constraint("Coincident", 23, 2, 21, 1),
    Sketcher.Constraint("Vertical", 4),
    Sketcher.Constraint("Horizontal", 5),
    Sketcher.Constraint("Vertical", 6),
    Sketcher.Constraint("Horizontal", 7),
    Sketcher.Constraint("Vertical", 8),
    Sketcher.Constraint("Horizontal", 9),
    Sketcher.Constraint("Vertical", 10),
    Sketcher.Constraint("Horizontal", 22),
    Sketcher.Constraint("Symmetric", 5, 2, 8, 2, -2),
    Sketcher.Constraint("Symmetric", 3, 2, 10, 2, -2),
    Sketcher.Constraint("Symmetric", 2, 2, 11, 2, -2),
    Sketcher.Constraint("Symmetric", 1, 2, 12, 2, -2),
    Sketcher.Constraint("Symmetric", 0, 2, 13, 2, -2),
    Sketcher.Constraint("Symmetric", 16, 2, 18, 2, -2),
    Sketcher.Constraint("Symmetric", 15, 2, 19, 2, -2),
    Sketcher.Constraint("Symmetric", 14, 2, 20, 2, -2),
    Sketcher.Constraint("PointOnObject", 17, 2, -2),
    Sketcher.Constraint("PointOnObject", 23, 2, -2),
    Sketcher.Constraint("Perpendicular", 0, 1),
    Sketcher.Constraint("Perpendicular", 1, 2),
    Sketcher.Constraint("Perpendicular", 2, 3),
    Sketcher.Constraint("Perpendicular", 14, 15),
    Sketcher.Constraint("Perpendicular", 15, 16),
    Sketcher.Constraint("Perpendicular", 16, 17),
    Sketcher.Constraint("Perpendicular", 17, 21),
    Sketcher.Constraint("Perpendicular", 20, 23),
    Sketcher.Constraint("Vertical", 8, 2, 21, 2),
    Sketcher.Constraint("Equal", 13, 15),
    Sketcher.Constraint("Equal", 12, 16),
    Sketcher.Constraint("Equal", 11, 17),
    Sketcher.Constraint("Equal", 14, 21),
    Sketcher.Constraint("DistanceX", 5, 2, 5, 1, Q("90 mm")),
    Sketcher.Constraint("DistanceX", 7, 2, 7, 1, Q("250 mm")),
    Sketcher.Constraint("Angle", 0, Q("-60 deg")),
    Sketcher.Constraint("DistanceY", 4, 2, -1, 1, Q("470 mm")),
    Sketcher.Constraint("DistanceY", 6, 2, 0, 2, Q("135 mm")),
    Sketcher.Constraint("DistanceY", 7, 2, 21, 2, Q("90 mm")),
    Sketcher.Constraint("DistanceY", 0, 2, 17, 2, Q("275.429399 mm")),
    Sketcher.Constraint("DistanceY", 4, 2, 4, 1, Q("345.869692 mm")),
    Sketcher.Constraint("DistanceX", -1, 1, 1, 2, Q("469.53194 mm")),
])
pad9 = doc.addObject("PartDesign::Pad", "Pad008")
body.addObject(pad9)
pad9.Profile = sketch9
pad9.Length = 67.5

doc.recompute()
